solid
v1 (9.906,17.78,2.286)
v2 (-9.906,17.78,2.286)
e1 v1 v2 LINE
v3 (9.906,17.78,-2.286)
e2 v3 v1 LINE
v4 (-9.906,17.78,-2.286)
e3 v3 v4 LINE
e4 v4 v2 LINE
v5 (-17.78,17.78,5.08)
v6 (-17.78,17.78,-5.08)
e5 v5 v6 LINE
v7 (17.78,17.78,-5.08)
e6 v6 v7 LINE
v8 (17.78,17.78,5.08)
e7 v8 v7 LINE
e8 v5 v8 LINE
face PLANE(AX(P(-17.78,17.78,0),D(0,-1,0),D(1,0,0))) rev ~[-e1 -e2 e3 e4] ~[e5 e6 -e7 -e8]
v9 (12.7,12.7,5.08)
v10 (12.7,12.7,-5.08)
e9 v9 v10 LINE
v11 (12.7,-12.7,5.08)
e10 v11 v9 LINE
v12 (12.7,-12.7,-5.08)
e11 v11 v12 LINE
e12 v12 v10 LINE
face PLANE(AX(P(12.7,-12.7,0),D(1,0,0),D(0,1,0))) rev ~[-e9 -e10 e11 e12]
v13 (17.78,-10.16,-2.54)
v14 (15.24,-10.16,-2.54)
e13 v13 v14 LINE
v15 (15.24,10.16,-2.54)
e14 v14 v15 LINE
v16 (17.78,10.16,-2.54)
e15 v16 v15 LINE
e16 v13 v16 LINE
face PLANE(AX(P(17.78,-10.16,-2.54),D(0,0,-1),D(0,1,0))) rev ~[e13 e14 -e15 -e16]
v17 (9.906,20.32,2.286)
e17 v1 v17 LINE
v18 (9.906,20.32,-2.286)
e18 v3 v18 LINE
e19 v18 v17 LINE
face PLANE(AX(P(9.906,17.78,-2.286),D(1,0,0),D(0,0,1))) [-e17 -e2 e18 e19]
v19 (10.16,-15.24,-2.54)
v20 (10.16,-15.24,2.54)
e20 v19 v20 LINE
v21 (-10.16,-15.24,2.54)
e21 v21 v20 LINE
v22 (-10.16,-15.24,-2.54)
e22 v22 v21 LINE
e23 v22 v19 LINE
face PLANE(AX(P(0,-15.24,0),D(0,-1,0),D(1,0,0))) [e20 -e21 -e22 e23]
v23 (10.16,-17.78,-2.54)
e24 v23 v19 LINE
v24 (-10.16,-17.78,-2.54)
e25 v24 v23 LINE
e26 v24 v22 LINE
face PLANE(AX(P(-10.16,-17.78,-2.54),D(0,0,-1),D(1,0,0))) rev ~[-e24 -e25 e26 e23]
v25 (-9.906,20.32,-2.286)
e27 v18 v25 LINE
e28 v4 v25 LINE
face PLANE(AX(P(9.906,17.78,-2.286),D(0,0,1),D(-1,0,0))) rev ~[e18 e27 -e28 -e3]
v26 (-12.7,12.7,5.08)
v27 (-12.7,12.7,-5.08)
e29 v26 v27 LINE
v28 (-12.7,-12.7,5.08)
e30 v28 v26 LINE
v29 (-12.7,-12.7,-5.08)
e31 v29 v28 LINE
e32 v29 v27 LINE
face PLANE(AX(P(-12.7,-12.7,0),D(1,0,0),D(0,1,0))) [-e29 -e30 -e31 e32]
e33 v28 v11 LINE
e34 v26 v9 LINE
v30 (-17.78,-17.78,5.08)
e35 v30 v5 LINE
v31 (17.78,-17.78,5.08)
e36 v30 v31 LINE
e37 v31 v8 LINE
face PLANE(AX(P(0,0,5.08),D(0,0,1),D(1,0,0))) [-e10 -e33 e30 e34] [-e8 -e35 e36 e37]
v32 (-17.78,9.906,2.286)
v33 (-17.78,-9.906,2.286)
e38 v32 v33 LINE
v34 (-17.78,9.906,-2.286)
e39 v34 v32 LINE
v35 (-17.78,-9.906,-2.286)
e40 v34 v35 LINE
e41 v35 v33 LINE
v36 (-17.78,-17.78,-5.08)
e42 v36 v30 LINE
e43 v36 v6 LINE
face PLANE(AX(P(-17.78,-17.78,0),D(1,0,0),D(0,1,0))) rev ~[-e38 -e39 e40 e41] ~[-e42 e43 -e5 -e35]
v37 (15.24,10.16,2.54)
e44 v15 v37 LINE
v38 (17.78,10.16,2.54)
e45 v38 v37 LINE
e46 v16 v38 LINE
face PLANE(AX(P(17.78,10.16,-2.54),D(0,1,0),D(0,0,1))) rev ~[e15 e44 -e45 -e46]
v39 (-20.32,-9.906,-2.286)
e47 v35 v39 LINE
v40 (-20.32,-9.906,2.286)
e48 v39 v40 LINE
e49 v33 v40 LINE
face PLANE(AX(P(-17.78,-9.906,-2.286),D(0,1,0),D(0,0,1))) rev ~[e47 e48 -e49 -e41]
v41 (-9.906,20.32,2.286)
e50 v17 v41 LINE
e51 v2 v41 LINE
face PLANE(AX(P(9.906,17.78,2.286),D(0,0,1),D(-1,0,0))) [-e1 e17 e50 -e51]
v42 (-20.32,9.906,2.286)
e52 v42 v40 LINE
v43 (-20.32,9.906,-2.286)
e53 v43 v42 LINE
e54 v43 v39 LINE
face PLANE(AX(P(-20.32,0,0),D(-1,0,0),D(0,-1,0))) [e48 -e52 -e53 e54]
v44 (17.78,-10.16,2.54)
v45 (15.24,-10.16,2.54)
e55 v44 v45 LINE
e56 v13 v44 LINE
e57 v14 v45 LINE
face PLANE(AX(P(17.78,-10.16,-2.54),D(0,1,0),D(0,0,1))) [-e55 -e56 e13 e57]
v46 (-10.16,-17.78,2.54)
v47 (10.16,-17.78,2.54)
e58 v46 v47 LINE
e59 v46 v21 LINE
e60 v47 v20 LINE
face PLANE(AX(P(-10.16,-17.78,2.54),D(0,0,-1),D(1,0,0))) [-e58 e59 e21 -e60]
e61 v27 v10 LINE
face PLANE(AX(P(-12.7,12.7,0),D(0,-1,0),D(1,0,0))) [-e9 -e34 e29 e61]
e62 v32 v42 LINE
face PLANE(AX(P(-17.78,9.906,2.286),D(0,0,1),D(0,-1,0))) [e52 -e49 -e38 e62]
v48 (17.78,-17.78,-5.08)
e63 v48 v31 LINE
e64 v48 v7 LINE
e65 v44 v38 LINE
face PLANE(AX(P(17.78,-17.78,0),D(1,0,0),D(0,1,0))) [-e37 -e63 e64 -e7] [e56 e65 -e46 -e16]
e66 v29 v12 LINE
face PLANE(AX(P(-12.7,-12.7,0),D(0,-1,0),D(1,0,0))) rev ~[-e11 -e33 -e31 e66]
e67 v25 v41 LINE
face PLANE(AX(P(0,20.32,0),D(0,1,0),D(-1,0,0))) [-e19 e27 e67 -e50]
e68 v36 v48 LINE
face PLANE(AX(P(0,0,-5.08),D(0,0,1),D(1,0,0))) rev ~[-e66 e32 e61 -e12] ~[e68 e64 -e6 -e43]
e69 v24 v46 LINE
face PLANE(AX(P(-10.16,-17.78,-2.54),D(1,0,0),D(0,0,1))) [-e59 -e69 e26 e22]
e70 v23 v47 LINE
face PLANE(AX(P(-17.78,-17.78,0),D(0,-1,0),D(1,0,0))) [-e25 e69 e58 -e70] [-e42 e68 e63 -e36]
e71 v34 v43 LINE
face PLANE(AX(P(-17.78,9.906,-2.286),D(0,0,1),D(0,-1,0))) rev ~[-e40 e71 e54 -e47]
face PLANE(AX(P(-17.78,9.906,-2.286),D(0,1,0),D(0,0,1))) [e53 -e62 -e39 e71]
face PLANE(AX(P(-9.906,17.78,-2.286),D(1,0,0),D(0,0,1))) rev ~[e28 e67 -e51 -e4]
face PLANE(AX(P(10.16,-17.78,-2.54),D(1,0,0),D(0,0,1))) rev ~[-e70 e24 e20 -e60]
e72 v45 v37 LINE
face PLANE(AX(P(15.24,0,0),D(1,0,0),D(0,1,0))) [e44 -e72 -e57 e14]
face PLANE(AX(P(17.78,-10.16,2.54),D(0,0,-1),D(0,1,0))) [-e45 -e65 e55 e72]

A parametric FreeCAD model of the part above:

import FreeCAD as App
import Part
import Sketcher
Q = App.Units.Quantity

doc = App.newDocument("Part")
body = doc.addObject("PartDesign::Body", "Body")

# Sketch on XY plane
sketch1 = body.newObject("Sketcher::SketchObject", "Sketch")
sketch1.AttachmentSupport = (doc.getObject("XY_Plane"), [""])
sketch1.MapMode = "FlatFace"
sketch1.addGeometry([
    Part.LineSegment(App.Vector(-18, 18, 0), App.Vector(-18, -18, 0)),  # 0
    Part.LineSegment(App.Vector(-18, -18, 0), App.Vector(18, -18, 0)),  # 1
    Part.LineSegment(App.Vector(18, -18, 0), App.Vector(18, 18, 0)),  # 2
    Part.LineSegment(App.Vector(18, 18, 0), App.Vector(-18, 18, 0)),  # 3
    Part.LineSegment(App.Vector(13, -13, 0), App.Vector(-13, -13, 0)),  # 4
    Part.LineSegment(App.Vector(-13, -13, 0), App.Vector(-13, 13, 0)),  # 5
    Part.LineSegment(App.Vector(-13, 13, 0), App.Vector(13, 13, 0)),  # 6
    Part.LineSegment(App.Vector(13, 13, 0), App.Vector(13, -13, 0)),  # 7
], False)
sketch1.addConstraint([
    Sketcher.Constraint("Coincident", 0, 2, 1, 1),
    Sketcher.Constraint("Coincident", 1, 2, 2, 1),
    Sketcher.Constraint("Coincident", 2, 2, 3, 1),
    Sketcher.Constraint("Coincident", 3, 2, 0, 1),
    Sketcher.Constraint("Coincident", 4, 2, 5, 1),
    Sketcher.Constraint("Coincident", 5, 2, 6, 1),
    Sketcher.Constraint("Coincident", 6, 2, 7, 1),
    Sketcher.Constraint("Coincident", 7, 2, 4, 1),
    Sketcher.Constraint("Vertical", 0),
    Sketcher.Constraint("Horizontal", 1),
    Sketcher.Constraint("Vertical", 2),
    Sketcher.Constraint("Horizontal", 3),
    Sketcher.Constraint("Horizontal", 4),
    Sketcher.Constraint("Vertical", 5),
    Sketcher.Constraint("Horizontal", 6),
    Sketcher.Constraint("Vertical", 7),
    Sketcher.Constraint("Symmetric", 0, 2, 2, 2, -1, 1),
    Sketcher.Constraint("Symmetric", 4, 2, 6, 2, -1, 1),
    Sketcher.Constraint("Equal", 3, 0),
    Sketcher.Constraint("Equal", 6, 5),
    Sketcher.Constraint("DistanceX", 4, 2, 4, 1, Q("1 in")),
    Sketcher.Constraint("DistanceX", 1, 1, 1, 2, Q("1.4 in")),
])
pad1 = body.newObject("PartDesign::Pad", "Pad")
pad1.Profile = sketch1
pad1.Length = Q("0.4 in")
pad1.Midplane = True

# Sketch on YZ plane
sketch2 = body.newObject("Sketcher::SketchObject", "Sketch001")
sketch2.AttachmentSupport = (doc.getObject("YZ_Plane"), [""])
sketch2.MapMode = "FlatFace"
sketch2.AttachmentOffset = App.Placement(App.Vector(0, 0, -0.7 * 25.4), App.Rotation())
sketch2.addGeometry([
    Part.LineSegment(App.Vector(9.9, 2.3, 0), App.Vector(9.9, -2.3, 0)),
    Part.LineSegment(App.Vector(9.9, -2.3, 0), App.Vector(-9.9, -2.3, 0)),
    Part.LineSegment(App.Vector(-9.9, -2.3, 0), App.Vector(-9.9, 2.3, 0)),
    Part.LineSegment(App.Vector(-9.9, 2.3, 0), App.Vector(9.9, 2.3, 0)),
], False)
sketch2.addConstraint([
    Sketcher.Constraint("Coincident", 0, 2, 1, 1),
    Sketcher.Constraint("Coincident", 1, 2, 2, 1),
    Sketcher.Constraint("Coincident", 2, 2, 3, 1),
    Sketcher.Constraint("Coincident", 3, 2, 0, 1),
    Sketcher.Constraint("Vertical", 0),
    Sketcher.Constraint("Horizontal", 1),
    Sketcher.Constraint("Vertical", 2),
    Sketcher.Constraint("Horizontal", 3),
    Sketcher.Constraint("Symmetric", 0, 2, 2, 2, -1, 1),
    Sketcher.Constraint("DistanceX", 1, 2, 1, 1, Q("0.78 in")),
    Sketcher.Constraint("DistanceY", 0, 2, 0, 1, Q("0.18 in")),
])
pad2 = body.newObject("PartDesign::Pad", "Pad001")
pad2.Profile = sketch2
pad2.Length = Q("0.1 in")
pad2.Reversed = True

# Sketch on XZ plane
sketch3 = body.newObject("Sketcher::SketchObject", "Sketch002")
sketch3.AttachmentSupport = (doc.getObject("XZ_Plane"), [""])
sketch3.MapMode = "FlatFace"
sketch3.AttachmentOffset = App.Placement(App.Vector(0, 0, -0.7 * 25.4), App.Rotation())
sketch3.addGeometry([
    Part.LineSegment(App.Vector(9.9, 2.3, 0), App.Vector(9.9, -2.3, 0)),
    Part.LineSegment(App.Vector(9.9, -2.3, 0), App.Vector(-9.9, -2.3, 0)),
    Part.LineSegment(App.Vector(-9.9, -2.3, 0), App.Vector(-9.9, 2.3, 0)),
    Part.LineSegment(App.Vector(-9.9, 2.3, 0), App.Vector(9.9, 2.3, 0)),
], False)
sketch3.addConstraint([
    Sketcher.Constraint("Coincident", 0, 2, 1, 1),
    Sketcher.Constraint("Coincident", 1, 2, 2, 1),
    Sketcher.Constraint("Coincident", 2, 2, 3, 1),
    Sketcher.Constraint("Coincident", 3, 2, 0, 1),
    Sketcher.Constraint("Vertical", 0),
    Sketcher.Constraint("Horizontal", 1),
    Sketcher.Constraint("Vertical", 2),
    Sketcher.Constraint("Horizontal", 3),
    Sketcher.Constraint("Symmetric", 0, 2, 2, 2, -1, 1),
    Sketcher.Constraint("DistanceX", 1, 2, 1, 1, Q("0.78 in")),
    Sketcher.Constraint("DistanceY", 0, 2, 0, 1, Q("0.18 in")),
])
pad3 = body.newObject("PartDesign::Pad", "Pad002")
pad3.Profile = sketch3
pad3.Length = Q("0.1 in")
pad3.Reversed = True

# Sketch on YZ plane
sketch4 = body.newObject("Sketcher::SketchObject", "Sketch003")
sketch4.AttachmentSupport = (doc.getObject("YZ_Plane"), [""])
sketch4.MapMode = "FlatFace"
sketch4.AttachmentOffset = App.Placement(App.Vector(0, 0, 0.7 * 25.4), App.Rotation())
sketch4.addGeometry([
    Part.LineSegment(App.Vector(-10, 3, 0), App.Vector(-10, -3, 0)),
    Part.LineSegment(App.Vector(-10, -3, 0), App.Vector(10, -3, 0)),
    Part.LineSegment(App.Vector(10, -3, 0), App.Vector(10, 3, 0)),
    Part.LineSegment(App.Vector(10, 3, 0), App.Vector(-10, 3, 0)),
], False)
sketch4.addConstraint([
    Sketcher.Constraint("Coincident", 0, 2, 1, 1),
    Sketcher.Constraint("Coincident", 1, 2, 2, 1),
    Sketcher.Constraint("Coincident", 2, 2, 3, 1),
    Sketcher.Constraint("Coincident", 3, 2, 0, 1),
    Sketcher.Constraint("Vertical", 0),
    Sketcher.Constraint("Horizontal", 1),
    Sketcher.Constraint("Vertical", 2),
    Sketcher.Constraint("Horizontal", 3),
    Sketcher.Constraint("Symmetric", 0, 2, 2, 2, -1, 1),
    Sketcher.Constraint("DistanceX", 1, 1, 1, 2, Q("0.8 in")),
    Sketcher.Constraint("DistanceY", 0, 2, 0, 1, Q("0.2 in")),
])
pocket1 = body.newObject("PartDesign::Pocket", "Pocket")
pocket1.Profile = sketch4
pocket1.Length = Q("0.1 in")

# Sketch on XZ plane
sketch5 = body.newObject("Sketcher::SketchObject", "Sketch004")
sketch5.AttachmentSupport = (doc.getObject("XZ_Plane"), [""])
sketch5.MapMode = "FlatFace"
sketch5.AttachmentOffset = App.Placement(App.Vector(0, 0, 0.7 * 25.4), App.Rotation())
sketch5.addGeometry([
    Part.LineSegment(App.Vector(-10, 3, 0), App.Vector(-10, -3, 0)),
    Part.LineSegment(App.Vector(-10, -3, 0), App.Vector(10, -3, 0)),
    Part.LineSegment(App.Vector(10, -3, 0), App.Vector(10, 3, 0)),
    Part.LineSegment(App.Vector(10, 3, 0), App.Vector(-10, 3, 0)),
], False)
sketch5.addConstraint([
    Sketcher.Constraint("Coincident", 0, 2, 1, 1),
    Sketcher.Constraint("Coincident", 1, 2, 2, 1),
    Sketcher.Constraint("Coincident", 2, 2, 3, 1),
    Sketcher.Constraint("Coincident", 3, 2, 0, 1),
    Sketcher.Constraint("Vertical", 0),
    Sketcher.Constraint("Horizontal", 1),
    Sketcher.Constraint("Vertical", 2),
    Sketcher.Constraint("Horizontal", 3),
    Sketcher.Constraint("Symmetric", 0, 2, 2, 2, -1, 1),
    Sketcher.Constraint("DistanceX", 1, 1, 1, 2, Q("0.8 in")),
    Sketcher.Constraint("DistanceY", 0, 2, 0, 1, Q("0.2 in")),
])
pocket2 = body.newObject("PartDesign::Pocket", "Pocket001")
pocket2.Profile = sketch5
pocket2.Length = Q("0.1 in")

doc.recompute()
